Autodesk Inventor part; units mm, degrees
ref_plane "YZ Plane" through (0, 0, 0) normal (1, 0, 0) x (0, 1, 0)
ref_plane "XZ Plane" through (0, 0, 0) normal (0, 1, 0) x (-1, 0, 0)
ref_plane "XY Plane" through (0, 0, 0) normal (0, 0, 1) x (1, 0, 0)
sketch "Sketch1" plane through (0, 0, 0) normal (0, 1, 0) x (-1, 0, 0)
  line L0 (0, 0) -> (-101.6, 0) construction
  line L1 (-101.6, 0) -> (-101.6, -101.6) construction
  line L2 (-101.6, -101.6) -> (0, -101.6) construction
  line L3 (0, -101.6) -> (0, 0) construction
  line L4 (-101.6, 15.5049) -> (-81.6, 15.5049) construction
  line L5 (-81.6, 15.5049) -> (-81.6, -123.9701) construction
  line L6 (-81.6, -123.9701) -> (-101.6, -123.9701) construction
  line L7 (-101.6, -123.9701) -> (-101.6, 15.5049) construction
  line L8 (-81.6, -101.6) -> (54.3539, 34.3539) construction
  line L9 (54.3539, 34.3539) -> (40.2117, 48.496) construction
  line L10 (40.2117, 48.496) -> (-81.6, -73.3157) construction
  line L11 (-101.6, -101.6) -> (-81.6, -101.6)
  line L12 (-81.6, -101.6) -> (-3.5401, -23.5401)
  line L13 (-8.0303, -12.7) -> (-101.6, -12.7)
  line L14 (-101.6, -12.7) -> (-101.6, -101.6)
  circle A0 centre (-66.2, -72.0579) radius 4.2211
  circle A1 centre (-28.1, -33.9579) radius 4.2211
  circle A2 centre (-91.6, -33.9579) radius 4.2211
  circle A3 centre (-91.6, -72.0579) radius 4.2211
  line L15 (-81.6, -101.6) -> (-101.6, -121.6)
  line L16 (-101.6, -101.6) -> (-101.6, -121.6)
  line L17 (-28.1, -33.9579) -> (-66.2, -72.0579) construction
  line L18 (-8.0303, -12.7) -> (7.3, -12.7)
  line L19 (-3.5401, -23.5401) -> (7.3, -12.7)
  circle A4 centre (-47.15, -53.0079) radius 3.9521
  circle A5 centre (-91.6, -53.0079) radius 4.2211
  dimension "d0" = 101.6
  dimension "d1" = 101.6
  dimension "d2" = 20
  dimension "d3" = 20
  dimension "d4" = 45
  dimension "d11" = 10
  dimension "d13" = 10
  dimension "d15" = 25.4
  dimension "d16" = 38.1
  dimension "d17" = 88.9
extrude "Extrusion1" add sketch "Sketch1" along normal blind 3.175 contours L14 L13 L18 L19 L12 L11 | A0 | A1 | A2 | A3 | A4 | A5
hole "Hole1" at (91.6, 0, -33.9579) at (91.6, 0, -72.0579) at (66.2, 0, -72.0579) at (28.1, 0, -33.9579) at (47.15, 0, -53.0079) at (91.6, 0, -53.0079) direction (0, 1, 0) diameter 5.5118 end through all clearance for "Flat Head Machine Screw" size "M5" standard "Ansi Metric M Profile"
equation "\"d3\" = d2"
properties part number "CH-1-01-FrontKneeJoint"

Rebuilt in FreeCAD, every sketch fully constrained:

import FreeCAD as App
import Part
import Sketcher
from FreeCAD import Vector
Q = App.Units.Quantity


def add_polygon(sketch, points):
    """Adds a closed chain of lines whose ends are joined by coincident constraints."""
    first, n = sketch.GeometryCount, len(points)
    for a, b in zip(points, points[1:] + points[:1]):
        sketch.addGeometry(Part.LineSegment(App.Vector(*a, 0), App.Vector(*b, 0)), False)
    for i in range(n):
        sketch.addConstraint(Sketcher.Constraint("Coincident", first + i, 2, first + (i + 1) % n, 1))

doc = App.newDocument("Part")
body = doc.addObject("PartDesign::Body", "Body")

# Sketch on XZ plane
sketch1 = body.newObject("Sketcher::SketchObject", "Sketch")
sketch1.AttachmentSupport = (doc.getObject("XZ_Plane"), [""])
sketch1.MapMode = "FlatFace"
add_polygon(sketch1, [(102, -13), (102, -102), (82, -102), (-7, -13)])  # lines 0-3
sketch1.addConstraint([
    Sketcher.Constraint("Vertical", 0),
    Sketcher.Constraint("Horizontal", 1),
    Sketcher.Constraint("Horizontal", 3),
    Sketcher.Constraint("DistanceY", 0, 2, 0, 1, Q("3.5 in")),
    Sketcher.Constraint("DistanceX", -1, 1, 0, 2, Q("4 in")),
    Sketcher.Constraint("DistanceY", 0, 2, -1, 1, Q("4 in")),
    Sketcher.Constraint("DistanceX", 2, 2, 1, 2, Q("3.5 in")),
    Sketcher.Constraint("DistanceX", 1, 2, 1, 1, Q("0.7874 in")),
])
pad1 = body.newObject("PartDesign::Pad", "Pad")
pad1.Profile = sketch1
pad1.Length = Q("0.125 in")
pad1.Reversed = True

# Sketch on XZ plane
sketch2 = body.newObject("Sketcher::SketchObject", "Sketch001")
sketch2.AttachmentSupport = (doc.getObject("XZ_Plane"), [""])
sketch2.MapMode = "FlatFace"
sketch2.addGeometry([
    Part.Circle(Vector(91.6, -34, 0), Vector(0, 0, 1), 2.8),  # 0
    Part.Circle(Vector(91.6, -72.1, 0), Vector(0, 0, 1), 2.8),  # 1
    Part.Circle(Vector(66.2, -72.1, 0), Vector(0, 0, 1), 2.8),  # 2
    Part.Circle(Vector(28.1, -34, 0), Vector(0, 0, 1), 2.8),  # 3
    Part.Circle(Vector(47.1, -53, 0), Vector(0, 0, 1), 2.8),  # 4
    Part.Circle(Vector(91.6, -53, 0), Vector(0, 0, 1), 2.8),  # 5
], False)
sketch2.addConstraint([
    Sketcher.Constraint("Equal", 0, 1),
    Sketcher.Constraint("Equal", 1, 2),
    Sketcher.Constraint("Equal", 2, 3),
    Sketcher.Constraint("Equal", 3, 4),
    Sketcher.Constraint("Equal", 4, 5),
    Sketcher.Constraint("Horizontal", 1, 3, 2, 3),
    Sketcher.Constraint("Horizontal", 0, 3, 3, 3),
    Sketcher.Constraint("Horizontal", 4, 3, 5, 3),
    Sketcher.Constraint("Vertical", 0, 3, 1, 3),
    Sketcher.Constraint("Vertical", 1, 3, 5, 3),
    Sketcher.Constraint("Diameter", 0, Q("0.217 in")),
    Sketcher.Constraint("DistanceX", 2, 3, 1, 3, Q("1 in")),
    Sketcher.Constraint("DistanceY", 1, 3, 0, 3, Q("1.5 in")),
    Sketcher.Constraint("DistanceX", 3, 3, 2, 3, Q("1.5 in")),
    Sketcher.Constraint("DistanceX", 3, 3, 4, 3, Q("0.75 in")),
    Sketcher.Constraint("DistanceY", 4, 3, 3, 3, Q("0.75 in")),
    Sketcher.Constraint("DistanceX", -1, 1, 0, 3, Q("3.6063 in")),
    Sketcher.Constraint("DistanceY", 0, 3, -1, 1, 33.958),
])
doc.recompute()
hole = body.newObject("PartDesign::Hole", "Hole")
hole.Profile = sketch2
hole.ThreadType = "None"
hole.Diameter = Q("0.217 in")
hole.DepthType = "ThroughAll"

doc.recompute()
